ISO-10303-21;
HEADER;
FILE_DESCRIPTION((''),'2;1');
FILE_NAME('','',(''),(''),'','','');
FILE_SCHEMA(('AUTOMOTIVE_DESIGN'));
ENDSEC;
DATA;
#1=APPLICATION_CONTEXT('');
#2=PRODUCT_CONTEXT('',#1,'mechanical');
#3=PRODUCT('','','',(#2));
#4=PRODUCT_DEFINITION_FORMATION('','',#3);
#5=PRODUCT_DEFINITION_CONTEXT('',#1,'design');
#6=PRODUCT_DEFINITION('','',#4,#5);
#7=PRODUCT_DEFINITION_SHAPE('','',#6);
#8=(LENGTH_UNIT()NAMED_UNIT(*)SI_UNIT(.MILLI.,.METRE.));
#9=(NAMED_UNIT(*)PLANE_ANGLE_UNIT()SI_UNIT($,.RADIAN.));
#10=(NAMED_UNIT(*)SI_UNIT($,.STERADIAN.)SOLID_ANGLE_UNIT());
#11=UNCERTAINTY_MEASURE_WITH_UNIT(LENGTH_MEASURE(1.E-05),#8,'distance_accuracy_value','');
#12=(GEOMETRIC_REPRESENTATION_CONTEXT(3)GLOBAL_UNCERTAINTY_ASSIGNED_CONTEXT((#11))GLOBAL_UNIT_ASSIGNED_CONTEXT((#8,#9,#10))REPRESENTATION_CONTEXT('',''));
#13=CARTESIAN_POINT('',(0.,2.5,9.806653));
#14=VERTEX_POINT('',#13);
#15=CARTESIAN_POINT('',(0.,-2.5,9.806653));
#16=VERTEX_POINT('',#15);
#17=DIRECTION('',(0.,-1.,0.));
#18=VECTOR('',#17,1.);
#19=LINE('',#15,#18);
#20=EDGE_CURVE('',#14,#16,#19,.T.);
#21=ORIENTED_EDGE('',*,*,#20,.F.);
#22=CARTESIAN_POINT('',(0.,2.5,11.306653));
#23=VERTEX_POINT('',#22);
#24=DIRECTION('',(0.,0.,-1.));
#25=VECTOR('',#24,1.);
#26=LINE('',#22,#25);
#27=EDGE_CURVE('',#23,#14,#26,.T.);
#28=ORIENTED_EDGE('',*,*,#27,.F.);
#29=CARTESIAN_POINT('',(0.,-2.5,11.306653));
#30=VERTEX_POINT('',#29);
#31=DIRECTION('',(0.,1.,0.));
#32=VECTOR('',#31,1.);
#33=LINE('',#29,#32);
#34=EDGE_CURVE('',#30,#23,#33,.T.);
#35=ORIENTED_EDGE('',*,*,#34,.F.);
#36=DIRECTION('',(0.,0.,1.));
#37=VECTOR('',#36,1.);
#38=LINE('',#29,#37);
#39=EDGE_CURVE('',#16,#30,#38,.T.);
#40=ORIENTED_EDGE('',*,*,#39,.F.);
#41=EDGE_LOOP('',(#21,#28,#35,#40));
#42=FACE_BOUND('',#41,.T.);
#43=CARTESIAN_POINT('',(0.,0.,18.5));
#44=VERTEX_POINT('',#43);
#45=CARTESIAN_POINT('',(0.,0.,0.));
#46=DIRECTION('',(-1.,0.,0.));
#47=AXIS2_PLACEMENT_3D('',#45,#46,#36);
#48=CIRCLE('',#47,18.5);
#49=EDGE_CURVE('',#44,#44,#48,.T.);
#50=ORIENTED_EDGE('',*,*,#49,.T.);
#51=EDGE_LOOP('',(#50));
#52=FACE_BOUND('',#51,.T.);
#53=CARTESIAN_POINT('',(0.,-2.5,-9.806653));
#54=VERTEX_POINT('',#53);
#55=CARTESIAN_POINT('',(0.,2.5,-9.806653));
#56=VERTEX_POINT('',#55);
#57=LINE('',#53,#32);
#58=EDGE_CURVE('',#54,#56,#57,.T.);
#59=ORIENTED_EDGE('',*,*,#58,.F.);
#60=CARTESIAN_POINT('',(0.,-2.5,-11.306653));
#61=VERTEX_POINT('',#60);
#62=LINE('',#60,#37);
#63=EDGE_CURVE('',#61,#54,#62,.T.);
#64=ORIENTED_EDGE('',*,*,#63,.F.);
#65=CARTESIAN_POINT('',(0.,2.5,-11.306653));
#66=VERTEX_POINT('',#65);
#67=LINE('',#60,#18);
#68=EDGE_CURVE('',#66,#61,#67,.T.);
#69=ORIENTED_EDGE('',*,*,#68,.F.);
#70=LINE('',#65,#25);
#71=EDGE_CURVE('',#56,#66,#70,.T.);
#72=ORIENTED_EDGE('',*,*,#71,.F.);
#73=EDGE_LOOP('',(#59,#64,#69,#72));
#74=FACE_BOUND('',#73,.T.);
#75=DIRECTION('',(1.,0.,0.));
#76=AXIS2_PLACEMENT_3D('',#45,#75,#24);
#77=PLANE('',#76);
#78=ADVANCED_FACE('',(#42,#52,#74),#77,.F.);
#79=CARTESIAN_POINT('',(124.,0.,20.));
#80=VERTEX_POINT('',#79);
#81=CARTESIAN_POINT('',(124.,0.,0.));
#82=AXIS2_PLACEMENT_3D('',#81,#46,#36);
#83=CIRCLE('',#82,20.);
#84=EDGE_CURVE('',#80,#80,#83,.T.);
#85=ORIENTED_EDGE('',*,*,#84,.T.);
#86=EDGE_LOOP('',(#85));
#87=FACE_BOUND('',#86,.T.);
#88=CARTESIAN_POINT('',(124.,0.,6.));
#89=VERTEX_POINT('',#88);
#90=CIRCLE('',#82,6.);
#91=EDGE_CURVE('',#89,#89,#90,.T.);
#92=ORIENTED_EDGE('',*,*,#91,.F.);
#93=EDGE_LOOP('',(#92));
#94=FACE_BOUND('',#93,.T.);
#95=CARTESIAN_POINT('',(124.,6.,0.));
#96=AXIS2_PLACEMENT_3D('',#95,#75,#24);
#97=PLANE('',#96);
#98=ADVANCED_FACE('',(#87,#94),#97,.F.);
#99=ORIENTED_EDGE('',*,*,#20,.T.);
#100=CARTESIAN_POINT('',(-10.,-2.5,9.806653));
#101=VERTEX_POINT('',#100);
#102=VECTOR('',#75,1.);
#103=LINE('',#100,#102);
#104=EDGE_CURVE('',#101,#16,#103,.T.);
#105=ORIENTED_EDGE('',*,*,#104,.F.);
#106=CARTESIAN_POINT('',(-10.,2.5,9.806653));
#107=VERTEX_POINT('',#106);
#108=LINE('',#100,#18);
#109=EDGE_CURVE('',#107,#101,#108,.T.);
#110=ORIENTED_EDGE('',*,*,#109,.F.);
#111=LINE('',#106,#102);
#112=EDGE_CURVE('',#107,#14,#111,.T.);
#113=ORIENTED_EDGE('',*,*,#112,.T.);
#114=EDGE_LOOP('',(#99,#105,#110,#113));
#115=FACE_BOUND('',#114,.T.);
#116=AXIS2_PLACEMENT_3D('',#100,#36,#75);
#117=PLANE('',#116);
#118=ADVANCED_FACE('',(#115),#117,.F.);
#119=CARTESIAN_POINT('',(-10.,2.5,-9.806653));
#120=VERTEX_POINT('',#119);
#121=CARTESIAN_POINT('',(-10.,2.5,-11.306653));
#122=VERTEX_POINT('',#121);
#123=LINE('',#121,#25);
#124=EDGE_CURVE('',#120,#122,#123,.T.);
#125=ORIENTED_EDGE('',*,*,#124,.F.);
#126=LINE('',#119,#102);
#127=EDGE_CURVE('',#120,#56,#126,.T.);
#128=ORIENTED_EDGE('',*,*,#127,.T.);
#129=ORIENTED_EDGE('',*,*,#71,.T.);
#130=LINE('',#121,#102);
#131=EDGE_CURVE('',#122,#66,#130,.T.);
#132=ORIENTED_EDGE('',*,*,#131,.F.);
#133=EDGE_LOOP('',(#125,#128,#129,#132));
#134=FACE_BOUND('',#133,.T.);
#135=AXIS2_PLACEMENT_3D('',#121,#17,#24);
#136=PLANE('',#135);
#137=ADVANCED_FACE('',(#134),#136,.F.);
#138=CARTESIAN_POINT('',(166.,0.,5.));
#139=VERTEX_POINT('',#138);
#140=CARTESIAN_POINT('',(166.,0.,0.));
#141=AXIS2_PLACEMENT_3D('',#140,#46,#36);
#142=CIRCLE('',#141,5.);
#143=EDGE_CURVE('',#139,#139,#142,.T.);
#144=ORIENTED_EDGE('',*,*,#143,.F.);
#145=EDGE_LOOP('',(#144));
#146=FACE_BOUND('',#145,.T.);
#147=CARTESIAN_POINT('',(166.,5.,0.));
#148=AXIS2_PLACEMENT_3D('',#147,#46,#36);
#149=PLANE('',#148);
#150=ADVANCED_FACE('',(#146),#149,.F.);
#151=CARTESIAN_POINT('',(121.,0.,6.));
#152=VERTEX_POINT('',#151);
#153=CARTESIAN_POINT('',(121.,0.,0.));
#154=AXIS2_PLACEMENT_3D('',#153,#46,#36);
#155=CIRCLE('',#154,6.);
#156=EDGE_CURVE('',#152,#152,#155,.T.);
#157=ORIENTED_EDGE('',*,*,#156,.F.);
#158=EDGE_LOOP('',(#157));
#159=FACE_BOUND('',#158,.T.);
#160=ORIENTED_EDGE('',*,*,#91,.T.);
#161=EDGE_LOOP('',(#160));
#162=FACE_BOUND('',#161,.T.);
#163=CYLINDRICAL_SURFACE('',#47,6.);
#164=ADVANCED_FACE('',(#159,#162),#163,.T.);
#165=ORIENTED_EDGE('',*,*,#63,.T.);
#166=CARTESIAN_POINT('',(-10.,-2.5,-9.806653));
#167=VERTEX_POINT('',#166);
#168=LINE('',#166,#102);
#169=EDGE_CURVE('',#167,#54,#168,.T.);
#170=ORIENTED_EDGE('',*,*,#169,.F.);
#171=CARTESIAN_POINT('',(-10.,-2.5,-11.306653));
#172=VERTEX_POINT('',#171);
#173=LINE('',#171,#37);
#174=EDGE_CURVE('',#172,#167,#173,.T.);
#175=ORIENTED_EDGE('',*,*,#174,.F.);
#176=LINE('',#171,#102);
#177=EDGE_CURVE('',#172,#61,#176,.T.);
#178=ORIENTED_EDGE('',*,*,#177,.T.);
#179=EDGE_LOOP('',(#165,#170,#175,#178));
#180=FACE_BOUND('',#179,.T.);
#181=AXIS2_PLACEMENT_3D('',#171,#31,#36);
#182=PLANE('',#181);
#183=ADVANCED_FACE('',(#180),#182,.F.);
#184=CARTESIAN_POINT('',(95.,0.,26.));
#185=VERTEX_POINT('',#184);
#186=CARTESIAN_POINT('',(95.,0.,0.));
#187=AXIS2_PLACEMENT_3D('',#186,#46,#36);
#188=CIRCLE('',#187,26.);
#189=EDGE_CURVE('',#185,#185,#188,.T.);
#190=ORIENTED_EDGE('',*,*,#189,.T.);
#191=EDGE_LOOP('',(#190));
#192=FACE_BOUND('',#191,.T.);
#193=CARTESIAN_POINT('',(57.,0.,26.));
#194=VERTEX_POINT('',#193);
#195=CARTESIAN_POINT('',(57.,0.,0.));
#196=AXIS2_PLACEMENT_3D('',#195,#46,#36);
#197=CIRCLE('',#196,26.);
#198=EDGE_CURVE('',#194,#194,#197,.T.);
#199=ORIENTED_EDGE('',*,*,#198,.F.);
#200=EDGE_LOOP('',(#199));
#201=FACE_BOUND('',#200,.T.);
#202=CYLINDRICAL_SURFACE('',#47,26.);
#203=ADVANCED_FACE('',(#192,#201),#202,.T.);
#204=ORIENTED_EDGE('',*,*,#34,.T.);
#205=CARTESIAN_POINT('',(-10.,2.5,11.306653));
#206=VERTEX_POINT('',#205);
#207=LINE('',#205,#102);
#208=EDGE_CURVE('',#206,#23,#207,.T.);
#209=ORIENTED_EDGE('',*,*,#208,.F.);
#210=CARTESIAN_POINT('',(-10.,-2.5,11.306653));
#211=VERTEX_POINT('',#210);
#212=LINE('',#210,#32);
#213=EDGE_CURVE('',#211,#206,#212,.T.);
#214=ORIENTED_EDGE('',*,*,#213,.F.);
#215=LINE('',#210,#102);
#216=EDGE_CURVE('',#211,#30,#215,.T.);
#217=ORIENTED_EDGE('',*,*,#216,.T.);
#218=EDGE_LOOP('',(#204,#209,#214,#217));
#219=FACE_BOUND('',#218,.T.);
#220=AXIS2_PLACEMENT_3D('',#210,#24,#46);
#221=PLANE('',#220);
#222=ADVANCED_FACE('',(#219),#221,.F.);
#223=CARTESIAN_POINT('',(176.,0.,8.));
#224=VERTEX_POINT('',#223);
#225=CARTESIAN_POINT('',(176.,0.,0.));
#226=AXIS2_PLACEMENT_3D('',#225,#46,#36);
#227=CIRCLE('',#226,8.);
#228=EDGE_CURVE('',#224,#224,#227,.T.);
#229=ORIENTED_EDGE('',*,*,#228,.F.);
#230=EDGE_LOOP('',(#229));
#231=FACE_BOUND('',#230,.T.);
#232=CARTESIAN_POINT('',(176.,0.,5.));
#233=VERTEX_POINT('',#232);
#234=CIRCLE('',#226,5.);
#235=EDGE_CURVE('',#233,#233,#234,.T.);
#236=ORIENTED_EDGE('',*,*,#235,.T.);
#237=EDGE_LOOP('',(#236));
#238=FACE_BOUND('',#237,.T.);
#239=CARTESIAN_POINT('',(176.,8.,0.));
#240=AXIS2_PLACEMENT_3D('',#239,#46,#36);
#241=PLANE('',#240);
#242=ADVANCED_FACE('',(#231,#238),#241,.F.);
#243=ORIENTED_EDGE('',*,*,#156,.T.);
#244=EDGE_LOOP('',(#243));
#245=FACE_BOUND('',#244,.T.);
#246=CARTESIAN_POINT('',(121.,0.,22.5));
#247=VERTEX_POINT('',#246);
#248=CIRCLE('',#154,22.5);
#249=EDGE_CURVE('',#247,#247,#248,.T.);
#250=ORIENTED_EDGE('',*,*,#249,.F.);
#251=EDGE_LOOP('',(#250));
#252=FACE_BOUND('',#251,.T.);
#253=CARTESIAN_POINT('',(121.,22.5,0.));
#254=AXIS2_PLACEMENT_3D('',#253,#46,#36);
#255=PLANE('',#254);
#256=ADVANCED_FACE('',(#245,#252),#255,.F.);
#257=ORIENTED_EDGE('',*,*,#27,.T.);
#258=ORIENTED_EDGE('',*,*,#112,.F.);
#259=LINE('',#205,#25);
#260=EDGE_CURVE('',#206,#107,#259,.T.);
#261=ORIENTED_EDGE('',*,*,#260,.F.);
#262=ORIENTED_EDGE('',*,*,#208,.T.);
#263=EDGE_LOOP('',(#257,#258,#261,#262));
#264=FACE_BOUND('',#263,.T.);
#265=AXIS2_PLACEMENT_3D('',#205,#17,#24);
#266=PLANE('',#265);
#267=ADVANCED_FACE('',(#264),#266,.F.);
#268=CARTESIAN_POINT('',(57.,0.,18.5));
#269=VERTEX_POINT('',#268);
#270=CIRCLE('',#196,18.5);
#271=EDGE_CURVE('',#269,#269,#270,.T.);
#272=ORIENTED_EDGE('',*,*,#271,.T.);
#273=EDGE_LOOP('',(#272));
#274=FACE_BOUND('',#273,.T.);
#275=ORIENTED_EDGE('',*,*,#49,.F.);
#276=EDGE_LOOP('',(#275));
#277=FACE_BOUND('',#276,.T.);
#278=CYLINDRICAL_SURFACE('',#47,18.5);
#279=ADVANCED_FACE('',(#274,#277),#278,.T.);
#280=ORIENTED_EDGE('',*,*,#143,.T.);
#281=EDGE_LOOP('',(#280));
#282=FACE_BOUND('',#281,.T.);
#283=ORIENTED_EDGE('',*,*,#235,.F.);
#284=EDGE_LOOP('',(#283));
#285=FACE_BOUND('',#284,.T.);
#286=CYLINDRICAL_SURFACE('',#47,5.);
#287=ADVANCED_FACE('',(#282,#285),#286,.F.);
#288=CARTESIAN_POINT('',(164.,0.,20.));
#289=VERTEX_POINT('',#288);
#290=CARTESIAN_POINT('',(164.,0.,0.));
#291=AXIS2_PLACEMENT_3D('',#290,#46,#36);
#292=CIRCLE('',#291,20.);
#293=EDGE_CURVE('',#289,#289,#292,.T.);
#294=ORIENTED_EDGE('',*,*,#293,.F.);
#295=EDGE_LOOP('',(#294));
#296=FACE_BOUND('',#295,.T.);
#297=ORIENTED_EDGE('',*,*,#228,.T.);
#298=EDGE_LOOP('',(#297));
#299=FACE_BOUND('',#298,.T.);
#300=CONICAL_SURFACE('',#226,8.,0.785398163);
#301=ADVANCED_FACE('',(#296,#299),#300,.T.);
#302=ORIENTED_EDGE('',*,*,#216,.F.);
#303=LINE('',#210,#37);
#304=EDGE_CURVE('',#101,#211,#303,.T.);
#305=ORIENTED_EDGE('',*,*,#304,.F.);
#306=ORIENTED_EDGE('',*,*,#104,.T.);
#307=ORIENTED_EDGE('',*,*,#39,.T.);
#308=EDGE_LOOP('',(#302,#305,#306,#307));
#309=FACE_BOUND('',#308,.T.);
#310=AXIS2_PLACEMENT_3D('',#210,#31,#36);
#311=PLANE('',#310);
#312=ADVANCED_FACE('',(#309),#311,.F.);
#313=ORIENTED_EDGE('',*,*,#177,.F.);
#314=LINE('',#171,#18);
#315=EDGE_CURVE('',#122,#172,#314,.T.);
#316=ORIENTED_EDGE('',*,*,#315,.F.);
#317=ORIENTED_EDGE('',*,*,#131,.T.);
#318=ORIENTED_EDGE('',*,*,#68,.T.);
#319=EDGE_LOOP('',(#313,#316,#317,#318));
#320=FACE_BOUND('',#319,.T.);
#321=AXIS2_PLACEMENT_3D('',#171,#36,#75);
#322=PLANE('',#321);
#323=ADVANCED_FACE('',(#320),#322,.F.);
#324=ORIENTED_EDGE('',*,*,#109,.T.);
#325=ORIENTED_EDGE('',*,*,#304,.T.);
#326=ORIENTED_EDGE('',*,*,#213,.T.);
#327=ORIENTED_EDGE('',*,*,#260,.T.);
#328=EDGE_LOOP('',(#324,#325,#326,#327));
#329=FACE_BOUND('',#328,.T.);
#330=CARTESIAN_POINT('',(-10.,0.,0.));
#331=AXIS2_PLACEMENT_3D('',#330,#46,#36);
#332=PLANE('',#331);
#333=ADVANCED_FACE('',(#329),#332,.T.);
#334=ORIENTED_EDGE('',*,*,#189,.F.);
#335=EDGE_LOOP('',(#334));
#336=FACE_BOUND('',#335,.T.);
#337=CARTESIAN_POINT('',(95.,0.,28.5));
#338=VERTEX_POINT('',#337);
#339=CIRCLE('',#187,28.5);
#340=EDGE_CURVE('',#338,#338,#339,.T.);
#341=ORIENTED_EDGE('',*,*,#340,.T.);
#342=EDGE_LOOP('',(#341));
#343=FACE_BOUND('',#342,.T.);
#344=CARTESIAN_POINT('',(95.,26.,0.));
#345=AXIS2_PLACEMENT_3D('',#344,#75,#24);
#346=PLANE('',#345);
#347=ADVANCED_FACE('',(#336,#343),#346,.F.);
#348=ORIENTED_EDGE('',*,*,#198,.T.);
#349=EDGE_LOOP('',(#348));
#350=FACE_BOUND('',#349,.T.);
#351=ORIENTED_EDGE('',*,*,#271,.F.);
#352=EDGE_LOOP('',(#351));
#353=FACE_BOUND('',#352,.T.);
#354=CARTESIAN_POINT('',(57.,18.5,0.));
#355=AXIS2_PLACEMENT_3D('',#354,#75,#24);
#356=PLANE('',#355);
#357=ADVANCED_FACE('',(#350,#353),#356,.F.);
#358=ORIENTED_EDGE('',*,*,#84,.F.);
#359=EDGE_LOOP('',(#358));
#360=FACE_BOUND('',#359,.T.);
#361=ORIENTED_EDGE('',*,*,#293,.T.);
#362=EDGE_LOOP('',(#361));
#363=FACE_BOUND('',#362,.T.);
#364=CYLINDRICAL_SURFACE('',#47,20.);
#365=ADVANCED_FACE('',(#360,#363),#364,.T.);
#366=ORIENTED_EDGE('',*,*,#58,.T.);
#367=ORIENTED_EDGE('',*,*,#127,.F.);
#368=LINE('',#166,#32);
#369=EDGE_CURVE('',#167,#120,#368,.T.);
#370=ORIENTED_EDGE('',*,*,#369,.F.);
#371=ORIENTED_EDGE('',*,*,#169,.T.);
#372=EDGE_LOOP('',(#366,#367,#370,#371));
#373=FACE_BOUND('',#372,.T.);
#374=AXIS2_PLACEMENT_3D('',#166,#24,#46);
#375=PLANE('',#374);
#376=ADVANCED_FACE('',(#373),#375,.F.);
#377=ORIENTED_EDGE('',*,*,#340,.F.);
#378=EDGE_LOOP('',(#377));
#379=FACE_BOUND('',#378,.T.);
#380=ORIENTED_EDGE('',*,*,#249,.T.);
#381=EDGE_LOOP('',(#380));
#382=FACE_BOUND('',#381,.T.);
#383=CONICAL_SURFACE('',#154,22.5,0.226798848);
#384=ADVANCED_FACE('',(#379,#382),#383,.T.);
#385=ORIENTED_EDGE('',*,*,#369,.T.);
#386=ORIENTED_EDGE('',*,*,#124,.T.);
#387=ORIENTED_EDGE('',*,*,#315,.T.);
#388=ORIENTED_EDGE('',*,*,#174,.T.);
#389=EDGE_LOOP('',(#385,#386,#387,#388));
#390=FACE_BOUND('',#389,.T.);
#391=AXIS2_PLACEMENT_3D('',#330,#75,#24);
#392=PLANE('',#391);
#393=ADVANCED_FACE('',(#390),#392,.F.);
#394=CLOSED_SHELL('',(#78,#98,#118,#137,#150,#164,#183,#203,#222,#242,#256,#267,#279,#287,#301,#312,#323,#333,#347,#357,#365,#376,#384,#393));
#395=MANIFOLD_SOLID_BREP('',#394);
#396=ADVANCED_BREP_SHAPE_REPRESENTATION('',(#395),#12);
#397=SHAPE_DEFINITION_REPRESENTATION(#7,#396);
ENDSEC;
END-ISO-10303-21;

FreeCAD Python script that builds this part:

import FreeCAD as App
import Part
import Sketcher

V = App.Vector
Q = App.Units.Quantity

doc = App.newDocument("Part")
body = doc.addObject("PartDesign::Body", "Body")

# Sketch on XY plane
sketch1 = body.newObject("Sketcher::SketchObject", "Sketch")
sketch1.AttachmentSupport = (doc.getObject("XY_Plane"), [""])
sketch1.MapMode = "FlatFace"
sketch1.addGeometry([
    Part.LineSegment(V(0, 18.5, 0), V(0, 0, 0)),  # 0
    Part.LineSegment(V(0, 0, 0), V(166, 0, 0)),  # 1
    Part.LineSegment(V(166, 0, 0), V(166, 5, 0)),  # 2
    Part.LineSegment(V(166, 5, 0), V(176, 5, 0)),  # 3
    Part.LineSegment(V(176, 5, 0), V(176, 8, 0)),  # 4
    Part.LineSegment(V(176, 8, 0), V(164, 20, 0)),  # 5
    Part.LineSegment(V(164, 20, 0), V(124, 20, 0)),  # 6
    Part.LineSegment(V(124, 20, 0), V(124, 6, 0)),  # 7
    Part.LineSegment(V(124, 6, 0), V(121, 6, 0)),  # 8
    Part.LineSegment(V(121, 6, 0), V(121, 22.5, 0)),  # 9
    Part.LineSegment(V(121, 22.5, 0), V(95, 28.5, 0)),  # 10
    Part.LineSegment(V(95, 28.5, 0), V(95, 26, 0)),  # 11
    Part.LineSegment(V(95, 26, 0), V(57, 26, 0)),  # 12
    Part.LineSegment(V(57, 26, 0), V(57, 18.5, 0)),  # 13
    Part.LineSegment(V(57, 18.5, 0), V(0, 18.5, 0)),  # 14
], False)
sketch1.addConstraint([
    Sketcher.Constraint("Coincident", 0, 2, 1, 1),
    Sketcher.Constraint("Coincident", 1, 2, 2, 1),
    Sketcher.Constraint("Coincident", 2, 2, 3, 1),
    Sketcher.Constraint("Coincident", 3, 2, 4, 1),
    Sketcher.Constraint("Coincident", 4, 2, 5, 1),
    Sketcher.Constraint("Coincident", 5, 2, 6, 1),
    Sketcher.Constraint("Coincident", 6, 2, 7, 1),
    Sketcher.Constraint("Coincident", 7, 2, 8, 1),
    Sketcher.Constraint("Coincident", 8, 2, 9, 1),
    Sketcher.Constraint("Coincident", 9, 2, 10, 1),
    Sketcher.Constraint("Coincident", 10, 2, 11, 1),
    Sketcher.Constraint("Coincident", 11, 2, 12, 1),
    Sketcher.Constraint("Coincident", 12, 2, 13, 1),
    Sketcher.Constraint("Coincident", 13, 2, 14, 1),
    Sketcher.Constraint("Coincident", 14, 2, 0, 1),
    Sketcher.Constraint("Vertical", 0),
    Sketcher.Constraint("Horizontal", 1),
    Sketcher.Constraint("Vertical", 2),
    Sketcher.Constraint("Horizontal", 3),
    Sketcher.Constraint("Vertical", 4),
    Sketcher.Constraint("Horizontal", 6),
    Sketcher.Constraint("Vertical", 7),
    Sketcher.Constraint("Horizontal", 8),
    Sketcher.Constraint("Vertical", 9),
    Sketcher.Constraint("Vertical", 11),
    Sketcher.Constraint("Horizontal", 12),
    Sketcher.Constraint("Vertical", 13),
    Sketcher.Constraint("Horizontal", 14),
    Sketcher.Constraint("Coincident", 0, 2, -1, 1),
    Sketcher.Constraint("Equal", 8, 4),
    Sketcher.Constraint("DistanceX", 1, 1, 1, 2, Q("166 mm")),
    Sketcher.Constraint("DistanceX", 3, 1, 3, 2, Q("10 mm")),
    Sketcher.Constraint("DistanceX", 6, 2, 6, 1, Q("40 mm")),
    Sketcher.Constraint("DistanceX", 8, 2, 8, 1, Q("3 mm")),
    Sketcher.Constraint("DistanceX", 12, 2, 12, 1, Q("38 mm")),
    Sketcher.Constraint("DistanceX", 14, 2, 14, 1, Q("57 mm")),
    Sketcher.Constraint("DistanceY", 2, 1, 2, 2, Q("5 mm")),
    Sketcher.Constraint("DistanceY", 7, 2, 7, 1, Q("14 mm")),
    Sketcher.Constraint("Angle", 5, Q("135 deg")),
    Sketcher.Constraint("DistanceY", 0, 2, 0, 1, Q("18.5 mm")),
    Sketcher.Constraint("DistanceY", 9, 1, 9, 2, Q("16.5 mm")),
    Sketcher.Constraint("DistanceY", 11, 2, 11, 1, Q("2.5 mm")),
    Sketcher.Constraint("DistanceY", 13, 2, 13, 1, Q("7.5 mm")),
    Sketcher.Constraint("DistanceX", -1, 1, 5, 2, Q("164 mm")),
])
revolution = body.newObject("PartDesign::Revolution", "Revolution")
revolution.Profile = sketch1
revolution.ReferenceAxis = (sketch1, ["H_Axis"])
revolution.Angle = 360

# Sketch on YZ plane
sketch2 = body.newObject("Sketcher::SketchObject", "Sketch001")
sketch2.AttachmentSupport = (doc.getObject("YZ_Plane"), [""])
sketch2.MapMode = "FlatFace"
sketch2.addGeometry([
    Part.LineSegment(V(2.5, 9.806653, 0), V(-2.5, 9.806653, 0)),  # 0
    Part.LineSegment(V(-2.5, 9.806653, 0), V(-2.5, 11.306653, 0)),  # 1
    Part.LineSegment(V(-2.5, 11.306653, 0), V(2.5, 11.306653, 0)),  # 2
    Part.LineSegment(V(2.5, 11.306653, 0), V(2.5, 9.806653, 0)),  # 3
    Part.LineSegment(V(2.5, -11.306653, 0), V(-2.5, -11.306653, 0)),  # 4
    Part.LineSegment(V(-2.5, -11.306653, 0), V(-2.5, -9.806653, 0)),  # 5
    Part.LineSegment(V(-2.5, -9.806653, 0), V(2.5, -9.806653, 0)),  # 6
    Part.LineSegment(V(2.5, -9.806653, 0), V(2.5, -11.306653, 0)),  # 7
], False)
sketch2.addConstraint([
    Sketcher.Constraint("Coincident", 0, 2, 1, 1),
    Sketcher.Constraint("Coincident", 1, 2, 2, 1),
    Sketcher.Constraint("Coincident", 2, 2, 3, 1),
    Sketcher.Constraint("Coincident", 3, 2, 0, 1),
    Sketcher.Constraint("Coincident", 4, 2, 5, 1),
    Sketcher.Constraint("Coincident", 5, 2, 6, 1),
    Sketcher.Constraint("Coincident", 6, 2, 7, 1),
    Sketcher.Constraint("Coincident", 7, 2, 4, 1),
    Sketcher.Constraint("Horizontal", 0),
    Sketcher.Constraint("Vertical", 1),
    Sketcher.Constraint("Horizontal", 2),
    Sketcher.Constraint("Vertical", 3),
    Sketcher.Constraint("Horizontal", 4),
    Sketcher.Constraint("Vertical", 5),
    Sketcher.Constraint("Horizontal", 6),
    Sketcher.Constraint("Vertical", 7),
    Sketcher.Constraint("Symmetric", 2, 2, 4, 2, -1, 1),
    Sketcher.Constraint("Symmetric", 0, 2, 6, 2, -1, 1),
    Sketcher.Constraint("Vertical", 1, 2, 4, 2),
    Sketcher.Constraint("DistanceX", 0, 2, 0, 1, Q("5 mm")),
    Sketcher.Constraint("DistanceY", 1, 1, 1, 2, Q("1.5 mm")),
    Sketcher.Constraint("DistanceY", -1, 1, 0, 2, Q("9.806653 mm")),
])
pad1 = body.newObject("PartDesign::Pad", "Pad")
pad1.Profile = sketch2
pad1.Length = 10
pad1.Reversed = True

doc.recompute()
